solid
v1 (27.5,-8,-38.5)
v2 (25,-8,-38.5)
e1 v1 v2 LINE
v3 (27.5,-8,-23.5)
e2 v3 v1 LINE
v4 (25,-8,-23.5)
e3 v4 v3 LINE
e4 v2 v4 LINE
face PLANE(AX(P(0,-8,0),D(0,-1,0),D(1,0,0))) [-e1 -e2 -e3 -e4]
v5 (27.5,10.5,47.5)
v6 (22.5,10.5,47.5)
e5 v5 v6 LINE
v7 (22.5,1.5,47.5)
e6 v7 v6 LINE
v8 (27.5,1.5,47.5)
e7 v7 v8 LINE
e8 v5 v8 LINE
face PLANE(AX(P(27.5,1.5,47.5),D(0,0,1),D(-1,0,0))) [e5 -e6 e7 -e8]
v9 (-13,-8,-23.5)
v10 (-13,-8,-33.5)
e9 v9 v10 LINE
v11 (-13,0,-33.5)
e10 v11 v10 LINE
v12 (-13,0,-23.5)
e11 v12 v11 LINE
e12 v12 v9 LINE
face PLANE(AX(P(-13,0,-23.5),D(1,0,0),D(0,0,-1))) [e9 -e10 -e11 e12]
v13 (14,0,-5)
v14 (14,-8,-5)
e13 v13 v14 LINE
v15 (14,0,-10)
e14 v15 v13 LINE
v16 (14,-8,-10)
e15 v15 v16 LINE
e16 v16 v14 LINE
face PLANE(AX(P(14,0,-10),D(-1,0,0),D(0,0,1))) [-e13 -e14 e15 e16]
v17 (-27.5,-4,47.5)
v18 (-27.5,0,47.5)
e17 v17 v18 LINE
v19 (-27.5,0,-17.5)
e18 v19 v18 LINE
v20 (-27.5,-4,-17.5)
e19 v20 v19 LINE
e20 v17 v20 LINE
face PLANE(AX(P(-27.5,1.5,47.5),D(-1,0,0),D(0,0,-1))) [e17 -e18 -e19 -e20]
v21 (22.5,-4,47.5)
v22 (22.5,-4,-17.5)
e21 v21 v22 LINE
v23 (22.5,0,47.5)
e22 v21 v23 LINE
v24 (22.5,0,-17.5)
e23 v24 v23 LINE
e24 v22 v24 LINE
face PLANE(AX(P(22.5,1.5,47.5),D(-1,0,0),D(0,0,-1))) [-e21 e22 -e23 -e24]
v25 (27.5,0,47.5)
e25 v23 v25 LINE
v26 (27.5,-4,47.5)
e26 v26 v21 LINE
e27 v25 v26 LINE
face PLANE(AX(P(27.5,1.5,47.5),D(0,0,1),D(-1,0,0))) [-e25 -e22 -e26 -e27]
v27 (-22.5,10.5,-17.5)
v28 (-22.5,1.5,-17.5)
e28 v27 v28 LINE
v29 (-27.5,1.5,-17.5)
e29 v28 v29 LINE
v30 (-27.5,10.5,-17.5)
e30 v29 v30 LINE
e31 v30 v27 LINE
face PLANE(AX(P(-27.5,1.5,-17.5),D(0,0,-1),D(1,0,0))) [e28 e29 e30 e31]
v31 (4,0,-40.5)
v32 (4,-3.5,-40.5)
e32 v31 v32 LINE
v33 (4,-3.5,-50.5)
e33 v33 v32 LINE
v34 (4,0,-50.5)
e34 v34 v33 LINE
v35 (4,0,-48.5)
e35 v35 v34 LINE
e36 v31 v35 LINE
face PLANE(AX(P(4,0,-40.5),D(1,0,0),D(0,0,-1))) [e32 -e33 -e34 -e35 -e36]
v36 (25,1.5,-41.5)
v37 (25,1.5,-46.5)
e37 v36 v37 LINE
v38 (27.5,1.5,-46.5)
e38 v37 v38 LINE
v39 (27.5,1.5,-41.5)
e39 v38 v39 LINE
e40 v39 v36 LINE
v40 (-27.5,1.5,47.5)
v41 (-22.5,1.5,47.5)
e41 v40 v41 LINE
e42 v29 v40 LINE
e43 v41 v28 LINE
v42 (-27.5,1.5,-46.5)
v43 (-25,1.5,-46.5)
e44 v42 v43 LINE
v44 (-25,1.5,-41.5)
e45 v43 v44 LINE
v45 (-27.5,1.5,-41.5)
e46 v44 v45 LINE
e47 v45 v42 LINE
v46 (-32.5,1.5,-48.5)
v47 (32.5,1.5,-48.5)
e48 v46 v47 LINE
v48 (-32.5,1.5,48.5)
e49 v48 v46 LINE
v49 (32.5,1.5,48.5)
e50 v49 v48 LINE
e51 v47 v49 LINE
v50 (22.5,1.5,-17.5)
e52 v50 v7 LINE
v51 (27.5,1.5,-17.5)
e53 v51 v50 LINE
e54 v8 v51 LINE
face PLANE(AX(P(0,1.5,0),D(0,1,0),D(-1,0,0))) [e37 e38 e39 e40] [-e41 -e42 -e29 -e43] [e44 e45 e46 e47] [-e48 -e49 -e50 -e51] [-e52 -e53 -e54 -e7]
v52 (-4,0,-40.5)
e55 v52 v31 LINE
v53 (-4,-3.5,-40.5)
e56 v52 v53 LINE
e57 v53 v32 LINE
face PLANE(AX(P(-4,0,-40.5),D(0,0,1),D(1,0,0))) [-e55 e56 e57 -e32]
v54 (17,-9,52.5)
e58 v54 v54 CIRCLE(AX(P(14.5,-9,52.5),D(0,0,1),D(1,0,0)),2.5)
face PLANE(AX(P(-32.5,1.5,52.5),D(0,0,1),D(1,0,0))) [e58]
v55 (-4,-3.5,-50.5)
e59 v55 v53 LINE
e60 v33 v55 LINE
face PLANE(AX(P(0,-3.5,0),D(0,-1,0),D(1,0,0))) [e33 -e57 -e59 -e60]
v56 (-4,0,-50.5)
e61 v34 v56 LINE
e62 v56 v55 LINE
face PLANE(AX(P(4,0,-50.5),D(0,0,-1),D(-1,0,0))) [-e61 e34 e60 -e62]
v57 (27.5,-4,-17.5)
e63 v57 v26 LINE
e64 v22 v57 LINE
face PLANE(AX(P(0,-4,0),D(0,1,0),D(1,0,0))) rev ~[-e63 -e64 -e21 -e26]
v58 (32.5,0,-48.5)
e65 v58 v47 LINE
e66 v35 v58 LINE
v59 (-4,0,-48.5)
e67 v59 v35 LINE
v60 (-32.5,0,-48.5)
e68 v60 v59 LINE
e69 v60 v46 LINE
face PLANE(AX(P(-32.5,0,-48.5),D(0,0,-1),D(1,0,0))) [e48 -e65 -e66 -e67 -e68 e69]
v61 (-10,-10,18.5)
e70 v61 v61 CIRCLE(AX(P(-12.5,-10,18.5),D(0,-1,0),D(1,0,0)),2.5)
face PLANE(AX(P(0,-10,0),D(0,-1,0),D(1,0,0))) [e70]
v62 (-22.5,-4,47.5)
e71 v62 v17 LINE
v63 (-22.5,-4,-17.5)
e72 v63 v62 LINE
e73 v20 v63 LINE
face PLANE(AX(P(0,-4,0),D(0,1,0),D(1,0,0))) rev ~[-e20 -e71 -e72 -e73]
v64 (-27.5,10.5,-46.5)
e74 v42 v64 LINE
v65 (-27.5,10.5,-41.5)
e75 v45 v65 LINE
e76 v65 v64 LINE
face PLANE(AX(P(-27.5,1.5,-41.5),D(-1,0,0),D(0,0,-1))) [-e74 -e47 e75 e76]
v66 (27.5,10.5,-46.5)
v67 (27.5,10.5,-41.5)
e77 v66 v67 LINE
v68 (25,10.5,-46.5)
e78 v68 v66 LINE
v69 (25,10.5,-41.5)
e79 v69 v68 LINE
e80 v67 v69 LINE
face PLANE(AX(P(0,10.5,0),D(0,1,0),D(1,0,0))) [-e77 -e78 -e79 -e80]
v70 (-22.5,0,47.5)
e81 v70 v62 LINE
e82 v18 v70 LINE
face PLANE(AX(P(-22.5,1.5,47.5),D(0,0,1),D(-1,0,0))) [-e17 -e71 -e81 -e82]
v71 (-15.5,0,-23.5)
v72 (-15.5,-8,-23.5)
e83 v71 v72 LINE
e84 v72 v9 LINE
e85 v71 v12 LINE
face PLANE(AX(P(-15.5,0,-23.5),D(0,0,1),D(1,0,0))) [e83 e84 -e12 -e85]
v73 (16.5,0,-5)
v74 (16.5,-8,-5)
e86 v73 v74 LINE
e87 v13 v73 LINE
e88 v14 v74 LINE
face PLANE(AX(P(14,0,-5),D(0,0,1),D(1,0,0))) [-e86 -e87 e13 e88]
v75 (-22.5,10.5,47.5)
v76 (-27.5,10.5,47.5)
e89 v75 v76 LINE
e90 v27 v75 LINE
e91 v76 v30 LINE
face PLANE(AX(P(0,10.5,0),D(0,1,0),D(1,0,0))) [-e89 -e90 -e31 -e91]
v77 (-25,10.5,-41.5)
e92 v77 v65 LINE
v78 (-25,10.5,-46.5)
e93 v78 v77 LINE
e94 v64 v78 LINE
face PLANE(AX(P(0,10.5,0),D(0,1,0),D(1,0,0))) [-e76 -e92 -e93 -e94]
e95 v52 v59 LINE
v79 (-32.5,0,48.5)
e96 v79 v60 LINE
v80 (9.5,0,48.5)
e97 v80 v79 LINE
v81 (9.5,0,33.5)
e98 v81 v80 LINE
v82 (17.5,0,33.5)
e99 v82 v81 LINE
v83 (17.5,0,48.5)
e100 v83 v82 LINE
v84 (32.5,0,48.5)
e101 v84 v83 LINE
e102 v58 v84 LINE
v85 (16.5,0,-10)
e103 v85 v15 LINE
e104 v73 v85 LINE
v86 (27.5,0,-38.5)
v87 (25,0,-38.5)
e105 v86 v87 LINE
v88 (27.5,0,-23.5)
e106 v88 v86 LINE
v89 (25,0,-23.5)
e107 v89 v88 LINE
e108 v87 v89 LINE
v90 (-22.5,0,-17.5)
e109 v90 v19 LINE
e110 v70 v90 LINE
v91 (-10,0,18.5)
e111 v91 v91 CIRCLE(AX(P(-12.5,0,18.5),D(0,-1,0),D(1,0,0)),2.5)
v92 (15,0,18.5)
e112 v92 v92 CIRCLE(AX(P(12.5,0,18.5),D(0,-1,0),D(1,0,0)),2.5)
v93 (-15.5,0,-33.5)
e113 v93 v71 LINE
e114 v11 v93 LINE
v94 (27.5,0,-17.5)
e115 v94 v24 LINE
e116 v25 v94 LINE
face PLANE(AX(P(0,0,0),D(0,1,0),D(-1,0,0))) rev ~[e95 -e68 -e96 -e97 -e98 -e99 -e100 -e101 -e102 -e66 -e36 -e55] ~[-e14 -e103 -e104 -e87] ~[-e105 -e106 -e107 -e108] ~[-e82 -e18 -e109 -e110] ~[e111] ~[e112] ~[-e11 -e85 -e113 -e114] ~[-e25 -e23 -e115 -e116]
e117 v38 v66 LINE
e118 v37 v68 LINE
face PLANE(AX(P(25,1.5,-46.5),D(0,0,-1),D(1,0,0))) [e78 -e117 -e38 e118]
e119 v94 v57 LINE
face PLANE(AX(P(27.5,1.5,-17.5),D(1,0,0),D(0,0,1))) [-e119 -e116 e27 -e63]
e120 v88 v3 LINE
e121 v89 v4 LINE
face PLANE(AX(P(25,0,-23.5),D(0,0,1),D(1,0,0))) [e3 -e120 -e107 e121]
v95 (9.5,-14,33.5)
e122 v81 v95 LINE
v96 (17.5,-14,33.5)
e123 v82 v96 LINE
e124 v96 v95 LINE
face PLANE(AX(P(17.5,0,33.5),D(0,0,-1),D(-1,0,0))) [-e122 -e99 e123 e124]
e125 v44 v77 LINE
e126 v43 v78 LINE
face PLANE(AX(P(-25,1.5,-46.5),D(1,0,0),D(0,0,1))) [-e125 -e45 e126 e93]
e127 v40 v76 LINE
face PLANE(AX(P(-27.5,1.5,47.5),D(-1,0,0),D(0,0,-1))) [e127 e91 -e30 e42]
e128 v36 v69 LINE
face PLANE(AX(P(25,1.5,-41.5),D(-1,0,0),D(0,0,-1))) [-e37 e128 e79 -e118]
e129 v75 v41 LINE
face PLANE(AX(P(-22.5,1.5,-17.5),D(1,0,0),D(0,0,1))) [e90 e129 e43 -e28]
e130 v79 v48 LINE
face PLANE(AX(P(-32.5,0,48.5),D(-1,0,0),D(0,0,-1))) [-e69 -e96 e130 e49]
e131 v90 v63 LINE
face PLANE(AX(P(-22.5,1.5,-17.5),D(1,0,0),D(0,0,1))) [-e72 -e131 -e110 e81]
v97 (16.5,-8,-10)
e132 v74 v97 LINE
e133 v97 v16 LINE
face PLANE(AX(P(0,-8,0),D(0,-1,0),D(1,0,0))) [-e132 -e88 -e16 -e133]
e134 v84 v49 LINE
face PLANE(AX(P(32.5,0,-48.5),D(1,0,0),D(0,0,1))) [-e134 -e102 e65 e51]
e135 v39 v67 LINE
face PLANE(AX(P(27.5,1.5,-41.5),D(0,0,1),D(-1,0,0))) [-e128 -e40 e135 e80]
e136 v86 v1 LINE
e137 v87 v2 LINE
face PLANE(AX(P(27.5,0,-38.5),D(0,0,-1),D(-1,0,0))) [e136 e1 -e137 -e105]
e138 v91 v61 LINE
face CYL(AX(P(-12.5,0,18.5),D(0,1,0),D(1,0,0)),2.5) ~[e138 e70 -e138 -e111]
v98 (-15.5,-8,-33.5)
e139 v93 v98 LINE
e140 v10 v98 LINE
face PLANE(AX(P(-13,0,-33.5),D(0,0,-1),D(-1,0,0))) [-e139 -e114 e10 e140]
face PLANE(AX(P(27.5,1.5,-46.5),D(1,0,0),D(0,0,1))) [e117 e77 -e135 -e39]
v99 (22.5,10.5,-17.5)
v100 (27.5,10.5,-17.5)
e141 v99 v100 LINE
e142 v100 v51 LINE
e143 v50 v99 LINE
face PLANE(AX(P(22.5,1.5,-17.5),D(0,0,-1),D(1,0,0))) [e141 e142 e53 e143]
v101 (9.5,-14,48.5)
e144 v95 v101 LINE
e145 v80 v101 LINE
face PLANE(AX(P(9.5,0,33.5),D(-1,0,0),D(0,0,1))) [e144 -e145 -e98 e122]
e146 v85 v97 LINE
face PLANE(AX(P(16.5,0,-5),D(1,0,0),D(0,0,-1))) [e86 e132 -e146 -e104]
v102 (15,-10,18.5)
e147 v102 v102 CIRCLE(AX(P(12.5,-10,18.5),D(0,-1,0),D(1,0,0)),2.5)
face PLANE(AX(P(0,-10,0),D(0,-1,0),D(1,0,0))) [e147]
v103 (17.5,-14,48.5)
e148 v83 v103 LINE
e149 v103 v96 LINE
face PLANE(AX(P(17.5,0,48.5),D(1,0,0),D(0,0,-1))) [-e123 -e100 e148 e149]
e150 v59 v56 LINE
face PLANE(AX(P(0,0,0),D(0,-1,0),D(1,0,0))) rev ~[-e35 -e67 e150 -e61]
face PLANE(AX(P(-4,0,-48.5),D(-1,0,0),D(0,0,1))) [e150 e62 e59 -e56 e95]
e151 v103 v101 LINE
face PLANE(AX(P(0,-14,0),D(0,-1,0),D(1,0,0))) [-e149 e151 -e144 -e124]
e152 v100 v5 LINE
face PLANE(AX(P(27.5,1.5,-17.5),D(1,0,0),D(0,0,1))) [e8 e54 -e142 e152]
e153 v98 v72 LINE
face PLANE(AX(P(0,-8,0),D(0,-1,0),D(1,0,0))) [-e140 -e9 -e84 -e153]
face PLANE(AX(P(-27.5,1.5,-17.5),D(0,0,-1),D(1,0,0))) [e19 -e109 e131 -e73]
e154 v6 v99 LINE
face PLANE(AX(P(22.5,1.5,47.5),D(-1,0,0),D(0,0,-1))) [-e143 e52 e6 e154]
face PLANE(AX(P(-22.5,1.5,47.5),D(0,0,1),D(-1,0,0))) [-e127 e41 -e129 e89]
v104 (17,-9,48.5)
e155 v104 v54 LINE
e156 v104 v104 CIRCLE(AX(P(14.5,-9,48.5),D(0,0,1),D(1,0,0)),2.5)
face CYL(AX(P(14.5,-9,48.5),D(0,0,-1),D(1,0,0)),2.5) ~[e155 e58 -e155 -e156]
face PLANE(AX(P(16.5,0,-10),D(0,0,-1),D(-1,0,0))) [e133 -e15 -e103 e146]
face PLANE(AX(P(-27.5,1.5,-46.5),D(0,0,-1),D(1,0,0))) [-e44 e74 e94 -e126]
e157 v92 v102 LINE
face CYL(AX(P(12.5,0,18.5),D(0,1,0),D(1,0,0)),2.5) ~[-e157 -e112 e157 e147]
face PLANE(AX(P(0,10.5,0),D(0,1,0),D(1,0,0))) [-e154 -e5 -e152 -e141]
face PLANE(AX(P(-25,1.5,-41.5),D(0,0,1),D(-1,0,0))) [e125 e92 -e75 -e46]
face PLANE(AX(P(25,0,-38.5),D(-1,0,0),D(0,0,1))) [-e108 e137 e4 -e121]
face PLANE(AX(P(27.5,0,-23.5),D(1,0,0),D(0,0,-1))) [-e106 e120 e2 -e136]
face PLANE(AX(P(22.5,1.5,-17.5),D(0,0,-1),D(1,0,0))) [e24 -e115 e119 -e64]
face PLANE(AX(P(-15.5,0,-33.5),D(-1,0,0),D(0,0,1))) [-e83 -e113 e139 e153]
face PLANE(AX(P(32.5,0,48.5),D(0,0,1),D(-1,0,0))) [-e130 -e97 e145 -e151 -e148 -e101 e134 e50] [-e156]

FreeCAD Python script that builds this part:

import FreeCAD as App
import Part
import Sketcher


def add_polygon(sketch, points):
    """Adds a closed chain of lines whose ends are joined by coincident constraints."""
    first, n = sketch.GeometryCount, len(points)
    for a, b in zip(points, points[1:] + points[:1]):
        sketch.addGeometry(Part.LineSegment(App.Vector(*a, 0), App.Vector(*b, 0)), False)
    for i in range(n):
        sketch.addConstraint(Sketcher.Constraint("Coincident", first + i, 2, first + (i + 1) % n, 1))

doc = App.newDocument("Part")
body = doc.addObject("PartDesign::Body", "Body")

sketch1 = doc.addObject("Sketcher::SketchObject", "Sketch")
body.addObject(sketch1)
sketch1.AttachmentSupport = (doc.XZ_Plane, [""])
sketch1.MapMode = "FlatFace"
add_polygon(sketch1, [(-32, 48), (32, 48), (32, -48), (-32, -48)])
sketch1.addConstraint([
    Sketcher.Constraint("Horizontal", 0),
    Sketcher.Constraint("Vertical", 1),
    Sketcher.Constraint("Horizontal", 2),
    Sketcher.Constraint("Vertical", 3),
    Sketcher.Constraint("Symmetric", 0, 2, 2, 2, -1, 1),
    Sketcher.Constraint("DistanceX", 0, 1, 0, 2, 65.0),
    Sketcher.Constraint("DistanceY", 1, 2, 1, 1, 97.0),
])
pad1 = doc.addObject("PartDesign::Pad", "Pad")
body.addObject(pad1)
pad1.Profile = sketch1
pad1.Length = 1.5
pad1.Reversed = True

sketch2 = doc.addObject("Sketcher::SketchObject", "Sketch001")
body.addObject(sketch2)
sketch2.AttachmentSupport = (doc.XZ_Plane, [""])
sketch2.MapMode = "FlatFace"
sketch2.AttachmentOffset = App.Placement(App.Vector(0, 0, -1.5), App.Rotation())
add_polygon(sketch2, [(-22, -18), (-28, -18), (-28, 48), (-22, 48)])
add_polygon(sketch2, [(28, -18), (22, -18), (22, 48), (28, 48)])
sketch2.addConstraint([
    Sketcher.Constraint("Horizontal", 0),
    Sketcher.Constraint("Vertical", 1),
    Sketcher.Constraint("Horizontal", 2),
    Sketcher.Constraint("Vertical", 3),
    Sketcher.Constraint("Horizontal", 4),
    Sketcher.Constraint("Vertical", 5),
    Sketcher.Constraint("Horizontal", 6),
    Sketcher.Constraint("Vertical", 7),
    Sketcher.Constraint("Symmetric", 3, 2, 4, 2, -2),
    Sketcher.Constraint("Symmetric", 1, 2, 6, 2, -2),
    Sketcher.Constraint("DistanceX", 0, 2, 0, 1, 5.0),
    Sketcher.Constraint("DistanceY", 1, 1, 1, 2, 65.0),
    Sketcher.Constraint("DistanceX", 3, 2, 4, 2, 45.0),
    Sketcher.Constraint("DistanceY", 0, 2, -1, 1, 17.5),
])
pad2 = doc.addObject("PartDesign::Pad", "Pad001")
body.addObject(pad2)
pad2.Profile = sketch2
pad2.Type = "TwoLengths"
pad2.Length = 9
pad2.Length2 = 5.5
pad2.Reversed = True

sketch3 = doc.addObject("Sketcher::SketchObject", "Sketch002")
body.addObject(sketch3)
sketch3.AttachmentSupport = (doc.XZ_Plane, [""])
sketch3.MapMode = "FlatFace"
add_polygon(sketch3, [(18, 34), (18, 48), (10, 48), (10, 34)])
sketch3.addConstraint([
    Sketcher.Constraint("Vertical", 0),
    Sketcher.Constraint("Horizontal", 1),
    Sketcher.Constraint("Vertical", 2),
    Sketcher.Constraint("Horizontal", 3),
    Sketcher.Constraint("DistanceX", 1, 2, 1, 1, 8.0),
    Sketcher.Constraint("DistanceY", 0, 1, 0, 2, 15.0),
    Sketcher.Constraint("DistanceX", -1, 1, 0, 2, 17.5),
    Sketcher.Constraint("DistanceY", -1, 1, 0, 2, 48.5),
])
pad3 = doc.addObject("PartDesign::Pad", "Pad002")
body.addObject(pad3)
pad3.Profile = sketch3
pad3.Length = 14

sketch4 = doc.addObject("Sketcher::SketchObject", "Sketch003")
body.addObject(sketch4)
sketch4.AttachmentSupport = (doc.XY_Plane, [""])
sketch4.MapMode = "FlatFace"
sketch4.AttachmentOffset = App.Placement(App.Vector(0, 0, 48.5), App.Rotation())
sketch4.addGeometry(Part.Circle(App.Vector(14.5, -9, 0), App.Vector(0, 0, 1), 2.5), False)
sketch4.addConstraint([
    Sketcher.Constraint("Diameter", 0, 5.0),
    Sketcher.Constraint("DistanceY", 0, 3, -1, 1, 9.0),
    Sketcher.Constraint("DistanceX", -1, 1, 0, 3, 14.5),
])
pad4 = doc.addObject("PartDesign::Pad", "Pad003")
body.addObject(pad4)
pad4.Profile = sketch4
pad4.Length = 4

sketch5 = doc.addObject("Sketcher::SketchObject", "Sketch004")
body.addObject(sketch5)
sketch5.AttachmentSupport = (doc.XZ_Plane, [""])
sketch5.MapMode = "FlatFace"
sketch5.addGeometry([
    Part.Circle(App.Vector(-12.5, 18.5, 0), App.Vector(0, 0, 1), 2.5),
    Part.Circle(App.Vector(12.5, 18.5, 0), App.Vector(0, 0, 1), 2.5),
], False)
sketch5.addConstraint([
    Sketcher.Constraint("Equal", 0, 1),
    Sketcher.Constraint("Symmetric", 0, 3, 1, 3, -2),
    Sketcher.Constraint("Diameter", 0, 5.0),
    Sketcher.Constraint("DistanceX", 0, 3, 1, 3, 25.0),
    Sketcher.Constraint("DistanceY", -1, 1, 0, 3, 18.5),
])
pad5 = doc.addObject("PartDesign::Pad", "Pad004")
body.addObject(pad5)
pad5.Profile = sketch5
pad5.Length = 10

sketch6 = doc.addObject("Sketcher::SketchObject", "Sketch005")
body.addObject(sketch6)
sketch6.AttachmentSupport = (doc.XZ_Plane, [""])
sketch6.MapMode = "FlatFace"
add_polygon(sketch6, [(27.5, -23.5), (25, -23.5), (25, -38.5), (27.5, -38.5)])
add_polygon(sketch6, [(-13, -23.5), (-15.5, -23.5), (-15.5, -33.5), (-13, -33.5)])
add_polygon(sketch6, [(16.5, -5), (14, -5), (14, -10), (16.5, -10)])
sketch6.addConstraint([
    Sketcher.Constraint("Horizontal", 0),
    Sketcher.Constraint("Vertical", 1),
    Sketcher.Constraint("Horizontal", 2),
    Sketcher.Constraint("Vertical", 3),
    Sketcher.Constraint("Horizontal", 4),
    Sketcher.Constraint("Vertical", 5),
    Sketcher.Constraint("Horizontal", 6),
    Sketcher.Constraint("Vertical", 7),
    Sketcher.Constraint("Horizontal", 8),
    Sketcher.Constraint("Vertical", 9),
    Sketcher.Constraint("Horizontal", 10),
    Sketcher.Constraint("Vertical", 11),
    Sketcher.Constraint("Horizontal", 3, 2, 4, 2),
    Sketcher.Constraint("Equal", 2, 4),
    Sketcher.Constraint("Equal", 6, 8),
    Sketcher.Constraint("DistanceY", 1, 2, 1, 1, 15.0),
    Sketcher.Constraint("DistanceY", 5, 2, 5, 1, 10.0),
    Sketcher.Constraint("DistanceY", 9, 2, 9, 1, 5.0),
    Sketcher.Constraint("DistanceX", 0, 2, 0, 1, 2.5),
    Sketcher.Constraint("DistanceY", 8, 2, -1, 1, 5.0),
    Sketcher.Constraint("DistanceX", -1, 1, 0, 2, 25.0),
    Sketcher.Constraint("DistanceX", 6, 2, -1, 1, 13.0),
    Sketcher.Constraint("DistanceX", -1, 1, 8, 2, 14.0),
    Sketcher.Constraint("DistanceY", 0, 2, -1, 1, 23.5),
])
pad6 = doc.addObject("PartDesign::Pad", "Pad005")
body.addObject(pad6)
pad6.Profile = sketch6
pad6.Length = 8

sketch7 = doc.addObject("Sketcher::SketchObject", "Sketch006")
body.addObject(sketch7)
sketch7.AttachmentSupport = (doc.XZ_Plane, [""])
sketch7.MapMode = "FlatFace"
add_polygon(sketch7, [(-4, -40), (-4, -50), (4, -50), (4, -40)])
sketch7.addConstraint([
    Sketcher.Constraint("Vertical", 0),
    Sketcher.Constraint("Horizontal", 1),
    Sketcher.Constraint("Vertical", 2),
    Sketcher.Constraint("Horizontal", 3),
    Sketcher.Constraint("DistanceX", 1, 1, 1, 2, 8.0),
    Sketcher.Constraint("DistanceY", 0, 2, 0, 1, 10.0),
    Sketcher.Constraint("DistanceX", 0, 2, -1, 1, 4.0),
    Sketcher.Constraint("DistanceY", 0, 2, -1, 1, 50.5),
])
pad7 = doc.addObject("PartDesign::Pad", "Pad006")
body.addObject(pad7)
pad7.Profile = sketch7
pad7.Length = 3.5

sketch8 = doc.addObject("Sketcher::SketchObject", "Sketch007")
body.addObject(sketch8)
sketch8.AttachmentSupport = (doc.XZ_Plane, [""])
sketch8.MapMode = "FlatFace"
sketch8.AttachmentOffset = App.Placement(App.Vector(0, 0, -1.5), App.Rotation())
add_polygon(sketch8, [(-25, -46.5), (-27.5, -46.5), (-27.5, -41.5), (-25, -41.5)])
add_polygon(sketch8, [(27.5, -46.5), (25, -46.5), (25, -41.5), (27.5, -41.5)])
sketch8.addConstraint([
    Sketcher.Constraint("Horizontal", 0),
    Sketcher.Constraint("Vertical", 1),
    Sketcher.Constraint("Horizontal", 2),
    Sketcher.Constraint("Vertical", 3),
    Sketcher.Constraint("Horizontal", 4),
    Sketcher.Constraint("Vertical", 5),
    Sketcher.Constraint("Horizontal", 6),
    Sketcher.Constraint("Vertical", 7),
    Sketcher.Constraint("Symmetric", 3, 2, 4, 2, -2),
    Sketcher.Constraint("Symmetric", 1, 2, 6, 2, -2),
    Sketcher.Constraint("DistanceY", 1, 1, 1, 2, 5.0),
    Sketcher.Constraint("DistanceX", 0, 2, 0, 1, 2.5),
    Sketcher.Constraint("DistanceX", 2, 2, -1, 1, 25.0),
    Sketcher.Constraint("DistanceY", 0, 2, -1, 1, 46.5),
])
pad8 = doc.addObject("PartDesign::Pad", "Pad007")
body.addObject(pad8)
pad8.Profile = sketch8
pad8.Length = 9
pad8.Reversed = True

doc.recompute()
